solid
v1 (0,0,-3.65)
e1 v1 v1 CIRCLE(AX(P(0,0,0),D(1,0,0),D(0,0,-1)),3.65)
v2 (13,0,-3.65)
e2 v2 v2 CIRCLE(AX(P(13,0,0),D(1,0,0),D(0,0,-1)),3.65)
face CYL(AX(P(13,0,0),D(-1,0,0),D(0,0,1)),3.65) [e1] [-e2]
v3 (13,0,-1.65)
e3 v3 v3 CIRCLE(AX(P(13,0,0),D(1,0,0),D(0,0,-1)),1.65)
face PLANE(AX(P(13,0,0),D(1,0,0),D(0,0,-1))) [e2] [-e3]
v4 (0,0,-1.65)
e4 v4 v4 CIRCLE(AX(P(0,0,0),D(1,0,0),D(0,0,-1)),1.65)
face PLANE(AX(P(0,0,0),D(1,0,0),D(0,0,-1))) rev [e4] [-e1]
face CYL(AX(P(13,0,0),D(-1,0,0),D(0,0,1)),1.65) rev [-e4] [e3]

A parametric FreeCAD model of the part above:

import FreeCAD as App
import Part
import Sketcher
from FreeCAD import Vector

doc = App.newDocument("Part")
body = doc.addObject("PartDesign::Body", "Body")

sketch1 = body.newObject("Sketcher::SketchObject", "Sketch")
sketch1.AttachmentSupport = (doc.getObject("YZ_Plane"), [""])
sketch1.MapMode = "FlatFace"
sketch1.addGeometry([
    Part.Circle(Vector(0, 0, 0), Vector(0, 0, 1), 3.6),
    Part.Circle(Vector(0, 0, 0), Vector(0, 0, 1), 1.6),
], False)
sketch1.addConstraint([
    Sketcher.Constraint("Coincident", 0, 3, -1, 1),
    Sketcher.Constraint("Coincident", 1, 3, -1, 1),
    Sketcher.Constraint("Diameter", 0, 7.3),
    Sketcher.Constraint("Diameter", 1, 3.3),
])
pad1 = body.newObject("PartDesign::Pad", "Pad")
pad1.Profile = sketch1
pad1.Length = 13

doc.recompute()
